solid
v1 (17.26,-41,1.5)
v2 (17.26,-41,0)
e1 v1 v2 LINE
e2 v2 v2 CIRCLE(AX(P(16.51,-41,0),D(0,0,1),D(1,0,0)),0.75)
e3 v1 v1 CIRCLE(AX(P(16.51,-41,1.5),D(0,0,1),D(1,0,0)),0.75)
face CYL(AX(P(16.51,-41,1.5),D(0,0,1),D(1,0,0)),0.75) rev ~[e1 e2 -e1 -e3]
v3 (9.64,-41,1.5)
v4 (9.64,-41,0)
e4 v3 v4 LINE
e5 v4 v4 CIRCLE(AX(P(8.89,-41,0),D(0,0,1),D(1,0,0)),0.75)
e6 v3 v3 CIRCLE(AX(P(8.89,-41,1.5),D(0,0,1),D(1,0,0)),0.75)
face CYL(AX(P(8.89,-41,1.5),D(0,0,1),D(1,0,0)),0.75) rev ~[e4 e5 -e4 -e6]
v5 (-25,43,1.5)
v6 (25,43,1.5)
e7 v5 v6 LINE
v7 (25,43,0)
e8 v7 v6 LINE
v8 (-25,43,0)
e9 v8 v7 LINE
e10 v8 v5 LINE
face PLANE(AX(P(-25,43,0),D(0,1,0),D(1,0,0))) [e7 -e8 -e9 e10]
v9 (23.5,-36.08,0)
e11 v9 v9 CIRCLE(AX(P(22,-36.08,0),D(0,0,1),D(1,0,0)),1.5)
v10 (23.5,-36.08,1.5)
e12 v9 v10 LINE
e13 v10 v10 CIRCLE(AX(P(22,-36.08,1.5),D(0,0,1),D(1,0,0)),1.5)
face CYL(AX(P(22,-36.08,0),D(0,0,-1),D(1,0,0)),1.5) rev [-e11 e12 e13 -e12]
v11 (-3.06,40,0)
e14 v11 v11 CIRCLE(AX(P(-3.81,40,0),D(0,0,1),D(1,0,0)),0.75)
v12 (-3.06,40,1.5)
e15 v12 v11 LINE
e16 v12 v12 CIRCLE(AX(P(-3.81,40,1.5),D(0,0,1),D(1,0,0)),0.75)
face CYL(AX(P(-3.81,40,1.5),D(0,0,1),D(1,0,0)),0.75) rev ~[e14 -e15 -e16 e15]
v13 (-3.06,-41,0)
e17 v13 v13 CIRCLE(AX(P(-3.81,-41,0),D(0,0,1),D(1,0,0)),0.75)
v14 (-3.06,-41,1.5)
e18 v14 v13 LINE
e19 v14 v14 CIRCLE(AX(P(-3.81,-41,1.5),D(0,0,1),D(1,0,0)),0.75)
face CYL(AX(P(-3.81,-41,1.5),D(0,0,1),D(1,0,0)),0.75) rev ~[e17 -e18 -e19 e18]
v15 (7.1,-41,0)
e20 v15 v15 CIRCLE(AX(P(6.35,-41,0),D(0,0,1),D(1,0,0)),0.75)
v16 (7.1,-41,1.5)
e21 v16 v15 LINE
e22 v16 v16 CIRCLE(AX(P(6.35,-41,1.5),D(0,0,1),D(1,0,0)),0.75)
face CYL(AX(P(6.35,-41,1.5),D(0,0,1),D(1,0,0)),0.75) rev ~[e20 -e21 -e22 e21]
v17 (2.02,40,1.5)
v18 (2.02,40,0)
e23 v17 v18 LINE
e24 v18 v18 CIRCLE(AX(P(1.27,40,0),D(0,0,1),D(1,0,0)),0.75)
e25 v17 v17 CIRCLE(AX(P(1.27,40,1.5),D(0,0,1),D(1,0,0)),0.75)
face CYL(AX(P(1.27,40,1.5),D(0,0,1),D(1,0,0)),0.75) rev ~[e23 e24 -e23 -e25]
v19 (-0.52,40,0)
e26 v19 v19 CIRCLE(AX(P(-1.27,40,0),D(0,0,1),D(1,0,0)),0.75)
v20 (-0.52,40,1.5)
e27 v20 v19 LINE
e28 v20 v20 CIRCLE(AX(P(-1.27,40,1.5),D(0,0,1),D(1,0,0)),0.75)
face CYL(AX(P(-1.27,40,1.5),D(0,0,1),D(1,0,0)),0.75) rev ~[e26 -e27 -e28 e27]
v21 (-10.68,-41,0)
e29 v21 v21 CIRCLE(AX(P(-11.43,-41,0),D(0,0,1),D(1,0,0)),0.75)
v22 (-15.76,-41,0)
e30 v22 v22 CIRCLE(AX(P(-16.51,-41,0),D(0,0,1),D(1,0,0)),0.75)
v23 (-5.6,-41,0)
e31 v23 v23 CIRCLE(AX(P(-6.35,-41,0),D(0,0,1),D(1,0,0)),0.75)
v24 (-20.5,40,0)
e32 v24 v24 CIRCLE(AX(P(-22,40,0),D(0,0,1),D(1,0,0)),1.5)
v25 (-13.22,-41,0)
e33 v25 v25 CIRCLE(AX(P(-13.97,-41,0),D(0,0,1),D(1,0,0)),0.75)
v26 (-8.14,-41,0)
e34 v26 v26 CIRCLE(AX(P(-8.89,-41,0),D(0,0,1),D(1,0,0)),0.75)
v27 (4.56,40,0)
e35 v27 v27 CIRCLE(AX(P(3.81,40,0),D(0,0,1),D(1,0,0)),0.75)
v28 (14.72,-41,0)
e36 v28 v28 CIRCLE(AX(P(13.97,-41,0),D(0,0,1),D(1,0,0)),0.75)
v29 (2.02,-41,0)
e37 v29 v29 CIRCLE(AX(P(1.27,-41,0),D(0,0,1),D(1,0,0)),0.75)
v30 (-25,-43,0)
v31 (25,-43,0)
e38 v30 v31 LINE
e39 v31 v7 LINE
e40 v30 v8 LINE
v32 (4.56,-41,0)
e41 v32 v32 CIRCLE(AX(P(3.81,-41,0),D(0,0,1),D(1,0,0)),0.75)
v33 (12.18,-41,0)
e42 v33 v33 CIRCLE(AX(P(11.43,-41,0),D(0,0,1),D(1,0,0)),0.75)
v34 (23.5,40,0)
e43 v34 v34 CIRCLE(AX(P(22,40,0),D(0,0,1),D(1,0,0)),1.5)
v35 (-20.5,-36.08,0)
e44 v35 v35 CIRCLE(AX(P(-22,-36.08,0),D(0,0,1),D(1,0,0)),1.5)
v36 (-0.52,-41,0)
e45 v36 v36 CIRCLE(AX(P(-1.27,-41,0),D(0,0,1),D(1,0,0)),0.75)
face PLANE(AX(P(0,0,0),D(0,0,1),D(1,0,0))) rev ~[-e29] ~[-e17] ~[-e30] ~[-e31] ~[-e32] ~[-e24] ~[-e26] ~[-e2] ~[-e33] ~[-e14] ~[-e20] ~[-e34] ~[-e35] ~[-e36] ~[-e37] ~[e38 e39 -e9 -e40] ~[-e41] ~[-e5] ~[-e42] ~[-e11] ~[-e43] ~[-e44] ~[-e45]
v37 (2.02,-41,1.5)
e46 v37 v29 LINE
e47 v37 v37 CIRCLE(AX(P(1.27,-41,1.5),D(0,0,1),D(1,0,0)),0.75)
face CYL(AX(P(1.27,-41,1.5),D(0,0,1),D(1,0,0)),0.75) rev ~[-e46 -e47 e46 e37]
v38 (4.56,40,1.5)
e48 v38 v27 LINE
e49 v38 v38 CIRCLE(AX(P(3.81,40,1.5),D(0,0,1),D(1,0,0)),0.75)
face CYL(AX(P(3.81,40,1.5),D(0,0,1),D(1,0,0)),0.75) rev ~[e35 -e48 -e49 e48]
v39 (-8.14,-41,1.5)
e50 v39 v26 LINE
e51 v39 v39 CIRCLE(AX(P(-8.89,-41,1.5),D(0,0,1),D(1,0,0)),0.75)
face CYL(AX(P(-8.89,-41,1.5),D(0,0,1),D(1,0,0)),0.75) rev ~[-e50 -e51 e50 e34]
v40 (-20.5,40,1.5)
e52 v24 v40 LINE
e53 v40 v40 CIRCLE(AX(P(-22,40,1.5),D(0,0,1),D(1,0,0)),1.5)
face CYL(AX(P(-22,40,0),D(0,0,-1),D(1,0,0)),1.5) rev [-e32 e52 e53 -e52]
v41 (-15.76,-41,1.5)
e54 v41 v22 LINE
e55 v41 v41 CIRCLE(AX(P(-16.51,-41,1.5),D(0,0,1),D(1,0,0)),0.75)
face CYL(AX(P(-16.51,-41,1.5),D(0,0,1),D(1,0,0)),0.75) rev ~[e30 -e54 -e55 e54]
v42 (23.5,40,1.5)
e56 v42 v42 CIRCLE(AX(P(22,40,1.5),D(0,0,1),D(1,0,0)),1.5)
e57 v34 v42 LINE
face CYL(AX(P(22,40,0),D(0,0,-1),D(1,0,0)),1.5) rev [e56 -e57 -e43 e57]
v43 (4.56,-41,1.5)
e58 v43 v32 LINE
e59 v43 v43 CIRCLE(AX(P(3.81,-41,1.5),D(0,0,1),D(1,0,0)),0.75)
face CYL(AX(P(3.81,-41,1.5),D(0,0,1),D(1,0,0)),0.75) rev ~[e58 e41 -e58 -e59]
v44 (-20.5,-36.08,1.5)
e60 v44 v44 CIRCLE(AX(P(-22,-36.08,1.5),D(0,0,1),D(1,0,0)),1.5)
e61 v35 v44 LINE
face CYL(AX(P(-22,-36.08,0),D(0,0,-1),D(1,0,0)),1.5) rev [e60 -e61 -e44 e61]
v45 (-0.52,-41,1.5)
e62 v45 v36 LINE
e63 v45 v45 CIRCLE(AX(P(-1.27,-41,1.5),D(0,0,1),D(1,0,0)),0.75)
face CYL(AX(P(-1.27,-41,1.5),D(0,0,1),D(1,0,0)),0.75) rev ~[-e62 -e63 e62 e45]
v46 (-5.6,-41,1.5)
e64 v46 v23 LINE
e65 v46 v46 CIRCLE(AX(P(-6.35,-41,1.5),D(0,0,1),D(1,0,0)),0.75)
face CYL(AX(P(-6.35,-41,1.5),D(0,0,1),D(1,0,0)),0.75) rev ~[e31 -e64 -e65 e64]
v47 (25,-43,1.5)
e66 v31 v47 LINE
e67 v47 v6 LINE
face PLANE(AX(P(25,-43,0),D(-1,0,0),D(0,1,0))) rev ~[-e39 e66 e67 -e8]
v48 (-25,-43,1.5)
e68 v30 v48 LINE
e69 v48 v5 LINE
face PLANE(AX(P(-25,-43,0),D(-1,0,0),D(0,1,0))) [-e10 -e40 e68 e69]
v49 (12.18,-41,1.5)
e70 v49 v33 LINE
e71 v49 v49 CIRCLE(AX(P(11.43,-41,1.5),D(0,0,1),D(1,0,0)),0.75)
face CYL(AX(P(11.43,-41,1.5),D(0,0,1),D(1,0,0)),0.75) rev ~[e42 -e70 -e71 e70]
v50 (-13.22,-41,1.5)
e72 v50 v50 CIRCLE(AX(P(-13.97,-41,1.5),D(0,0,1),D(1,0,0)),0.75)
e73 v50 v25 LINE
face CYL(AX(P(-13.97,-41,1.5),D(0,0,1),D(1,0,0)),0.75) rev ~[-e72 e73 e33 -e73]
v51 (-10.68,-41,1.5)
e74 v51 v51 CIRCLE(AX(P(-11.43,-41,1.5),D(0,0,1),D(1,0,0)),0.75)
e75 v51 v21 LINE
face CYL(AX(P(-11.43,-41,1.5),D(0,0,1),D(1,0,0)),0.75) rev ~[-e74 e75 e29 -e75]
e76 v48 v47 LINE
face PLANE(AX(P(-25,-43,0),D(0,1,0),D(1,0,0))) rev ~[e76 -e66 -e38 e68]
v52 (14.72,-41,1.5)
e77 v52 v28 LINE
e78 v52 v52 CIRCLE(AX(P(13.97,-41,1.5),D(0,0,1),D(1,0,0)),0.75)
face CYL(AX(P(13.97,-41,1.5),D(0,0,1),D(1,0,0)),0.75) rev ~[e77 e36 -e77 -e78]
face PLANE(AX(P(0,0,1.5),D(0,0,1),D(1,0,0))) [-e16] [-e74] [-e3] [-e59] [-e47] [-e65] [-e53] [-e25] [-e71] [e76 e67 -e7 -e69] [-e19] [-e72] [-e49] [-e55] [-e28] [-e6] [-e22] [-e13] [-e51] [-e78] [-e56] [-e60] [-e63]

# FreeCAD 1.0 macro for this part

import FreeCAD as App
import Part
import Sketcher

V = App.Vector


def add_polygon(sketch, points):
    """Adds a closed chain of lines whose ends are joined by coincident constraints."""
    first, n = sketch.GeometryCount, len(points)
    for a, b in zip(points, points[1:] + points[:1]):
        sketch.addGeometry(Part.LineSegment(App.Vector(*a, 0), App.Vector(*b, 0)), False)
    for i in range(n):
        sketch.addConstraint(Sketcher.Constraint("Coincident", first + i, 2, first + (i + 1) % n, 1))

doc = App.newDocument("Part")
body = doc.addObject("PartDesign::Body", "Body")

# Sketch on XY plane
sketch1 = body.newObject("Sketcher::SketchObject", "Sketch")
sketch1.AttachmentSupport = (doc.getObject("XY_Plane"), [""])
sketch1.MapMode = "FlatFace"
add_polygon(sketch1, [(-25, 43), (-25, -43), (25, -43), (25, 43)])  # lines 0-3
sketch1.addGeometry(Part.Circle(V(-22, -36.08, 0), V(0, 0, 1), 1.5), False)  # 4
sketch1.addGeometry(Part.Circle(V(22, -36.08, 0), V(0, 0, 1), 1.5), False)  # 5
sketch1.addGeometry(Part.Circle(V(-22, 40, 0), V(0, 0, 1), 1.5), False)  # 6
sketch1.addGeometry(Part.Circle(V(22, 40, 0), V(0, 0, 1), 1.5), False)  # 7
sketch1.addConstraint([
    Sketcher.Constraint("Vertical", 0),
    Sketcher.Constraint("Horizontal", 1),
    Sketcher.Constraint("Vertical", 2),
    Sketcher.Constraint("Horizontal", 3),
    Sketcher.Constraint("Equal", 4, 5),
    Sketcher.Constraint("Equal", 5, 6),
    Sketcher.Constraint("Equal", 6, 7),
    Sketcher.Constraint("Symmetric", 0, 2, 2, 2, -1, 1),
    Sketcher.Constraint("Symmetric", 4, 3, 5, 3, -2),
    Sketcher.Constraint("Symmetric", 6, 3, 7, 3, -2),
    Sketcher.Constraint("Vertical", 4, 3, 6, 3),
    Sketcher.Constraint("Diameter", 4, 3.0),
    Sketcher.Constraint("DistanceX", 1, 1, 1, 2, 50.0),
    Sketcher.Constraint("DistanceY", 0, 2, 0, 1, 86.0),
    Sketcher.Constraint("DistanceX", 4, 3, -1, 1, 22.0),
    Sketcher.Constraint("DistanceY", -1, 1, 6, 3, 40.0),
    Sketcher.Constraint("DistanceY", 4, 3, -1, 1, 36.08),
])
pad1 = body.newObject("PartDesign::Pad", "Pad")
pad1.Profile = sketch1
pad1.Length = 1.5

# Sketch on XY plane
sketch2 = body.newObject("Sketcher::SketchObject", "Sketch001")
sketch2.AttachmentSupport = (doc.getObject("XY_Plane"), [""])
sketch2.MapMode = "FlatFace"
sketch2.AttachmentOffset = App.Placement(V(0, 0, 1.5), App.Rotation())
sketch2.addGeometry([
    Part.Circle(V(-16.51, -41, 0), V(0, 0, 1), 0.75),  # 0
    Part.Circle(V(-13.97, -41, 0), V(0, 0, 1), 0.75),  # 1
    Part.Circle(V(-11.43, -41, 0), V(0, 0, 1), 0.75),  # 2
    Part.Circle(V(-8.89, -41, 0), V(0, 0, 1), 0.75),  # 3
    Part.Circle(V(-6.35, -41, 0), V(0, 0, 1), 0.75),  # 4
    Part.Circle(V(-3.81, -41, 0), V(0, 0, 1), 0.75),  # 5
    Part.Circle(V(-1.27, -41, 0), V(0, 0, 1), 0.75),  # 6
    Part.Circle(V(1.27, -41, 0), V(0, 0, 1), 0.75),  # 7
    Part.Circle(V(3.81, -41, 0), V(0, 0, 1), 0.75),  # 8
    Part.Circle(V(6.35, -41, 0), V(0, 0, 1), 0.75),  # 9
    Part.Circle(V(8.89, -41, 0), V(0, 0, 1), 0.75),  # 10
    Part.Circle(V(11.43, -41, 0), V(0, 0, 1), 0.75),  # 11
    Part.Circle(V(13.97, -41, 0), V(0, 0, 1), 0.75),  # 12
    Part.Circle(V(16.51, -41, 0), V(0, 0, 1), 0.75),  # 13
    Part.Circle(V(-3.81, 40, 0), V(0, 0, 1), 0.75),  # 14
    Part.Circle(V(-1.27, 40, 0), V(0, 0, 1), 0.75),  # 15
    Part.Circle(V(1.27, 40, 0), V(0, 0, 1), 0.75),  # 16
    Part.Circle(V(3.81, 40, 0), V(0, 0, 1), 0.75),  # 17
], False)
sketch2.addConstraint([
    Sketcher.Constraint("Equal", 0, 1),
    Sketcher.Constraint("Equal", 1, 2),
    Sketcher.Constraint("Equal", 2, 3),
    Sketcher.Constraint("Equal", 3, 4),
    Sketcher.Constraint("Equal", 4, 5),
    Sketcher.Constraint("Equal", 5, 6),
    Sketcher.Constraint("Equal", 6, 7),
    Sketcher.Constraint("Equal", 7, 8),
    Sketcher.Constraint("Equal", 8, 9),
    Sketcher.Constraint("Equal", 9, 10),
    Sketcher.Constraint("Equal", 10, 11),
    Sketcher.Constraint("Equal", 11, 12),
    Sketcher.Constraint("Equal", 12, 13),
    Sketcher.Constraint("Equal", 13, 14),
    Sketcher.Constraint("Equal", 14, 15),
    Sketcher.Constraint("Equal", 15, 16),
    Sketcher.Constraint("Equal", 16, 17),
    Sketcher.Constraint("Symmetric", 6, 3, 7, 3, -2),
    Sketcher.Constraint("Symmetric", 5, 3, 8, 3, -2),
    Sketcher.Constraint("Symmetric", 4, 3, 9, 3, -2),
    Sketcher.Constraint("Symmetric", 3, 3, 10, 3, -2),
    Sketcher.Constraint("Symmetric", 2, 3, 11, 3, -2),
    Sketcher.Constraint("Symmetric", 1, 3, 12, 3, -2),
    Sketcher.Constraint("Symmetric", 0, 3, 13, 3, -2),
    Sketcher.Constraint("Symmetric", 15, 3, 16, 3, -2),
    Sketcher.Constraint("Symmetric", 14, 3, 17, 3, -2),
    Sketcher.Constraint("Horizontal", 0, 3, 1, 3),
    Sketcher.Constraint("Horizontal", 1, 3, 2, 3),
    Sketcher.Constraint("Horizontal", 2, 3, 3, 3),
    Sketcher.Constraint("Horizontal", 3, 3, 4, 3),
    Sketcher.Constraint("Horizontal", 4, 3, 5, 3),
    Sketcher.Constraint("Horizontal", 5, 3, 6, 3),
    Sketcher.Constraint("Horizontal", 14, 3, 15, 3),
    Sketcher.Constraint("Vertical", 5, 3, 14, 3),
    Sketcher.Constraint("Vertical", 6, 3, 15, 3),
    Sketcher.Constraint("Diameter", 0, 1.5),
    Sketcher.Constraint("DistanceY", 0, 3, -1, 1, 41.0),
    Sketcher.Constraint("DistanceY", -1, 1, 14, 3, 40.0),
    Sketcher.Constraint("DistanceX", 0, 3, 5, 3, 12.7),
    Sketcher.Constraint("DistanceX", 1, 3, 6, 3, 12.7),
    Sketcher.Constraint("DistanceX", 2, 3, 7, 3, 12.7),
    Sketcher.Constraint("DistanceX", 3, 3, 8, 3, 12.7),
    Sketcher.Constraint("DistanceX", 4, 3, 9, 3, 12.7),
    Sketcher.Constraint("DistanceX", 0, 3, -1, 1, 16.51),
    Sketcher.Constraint("DistanceX", 1, 3, -1, 1, 13.97),
])
pocket1 = body.newObject("PartDesign::Pocket", "Pocket")
pocket1.Profile = sketch2
pocket1.Type = "ThroughAll"

doc.recompute()
